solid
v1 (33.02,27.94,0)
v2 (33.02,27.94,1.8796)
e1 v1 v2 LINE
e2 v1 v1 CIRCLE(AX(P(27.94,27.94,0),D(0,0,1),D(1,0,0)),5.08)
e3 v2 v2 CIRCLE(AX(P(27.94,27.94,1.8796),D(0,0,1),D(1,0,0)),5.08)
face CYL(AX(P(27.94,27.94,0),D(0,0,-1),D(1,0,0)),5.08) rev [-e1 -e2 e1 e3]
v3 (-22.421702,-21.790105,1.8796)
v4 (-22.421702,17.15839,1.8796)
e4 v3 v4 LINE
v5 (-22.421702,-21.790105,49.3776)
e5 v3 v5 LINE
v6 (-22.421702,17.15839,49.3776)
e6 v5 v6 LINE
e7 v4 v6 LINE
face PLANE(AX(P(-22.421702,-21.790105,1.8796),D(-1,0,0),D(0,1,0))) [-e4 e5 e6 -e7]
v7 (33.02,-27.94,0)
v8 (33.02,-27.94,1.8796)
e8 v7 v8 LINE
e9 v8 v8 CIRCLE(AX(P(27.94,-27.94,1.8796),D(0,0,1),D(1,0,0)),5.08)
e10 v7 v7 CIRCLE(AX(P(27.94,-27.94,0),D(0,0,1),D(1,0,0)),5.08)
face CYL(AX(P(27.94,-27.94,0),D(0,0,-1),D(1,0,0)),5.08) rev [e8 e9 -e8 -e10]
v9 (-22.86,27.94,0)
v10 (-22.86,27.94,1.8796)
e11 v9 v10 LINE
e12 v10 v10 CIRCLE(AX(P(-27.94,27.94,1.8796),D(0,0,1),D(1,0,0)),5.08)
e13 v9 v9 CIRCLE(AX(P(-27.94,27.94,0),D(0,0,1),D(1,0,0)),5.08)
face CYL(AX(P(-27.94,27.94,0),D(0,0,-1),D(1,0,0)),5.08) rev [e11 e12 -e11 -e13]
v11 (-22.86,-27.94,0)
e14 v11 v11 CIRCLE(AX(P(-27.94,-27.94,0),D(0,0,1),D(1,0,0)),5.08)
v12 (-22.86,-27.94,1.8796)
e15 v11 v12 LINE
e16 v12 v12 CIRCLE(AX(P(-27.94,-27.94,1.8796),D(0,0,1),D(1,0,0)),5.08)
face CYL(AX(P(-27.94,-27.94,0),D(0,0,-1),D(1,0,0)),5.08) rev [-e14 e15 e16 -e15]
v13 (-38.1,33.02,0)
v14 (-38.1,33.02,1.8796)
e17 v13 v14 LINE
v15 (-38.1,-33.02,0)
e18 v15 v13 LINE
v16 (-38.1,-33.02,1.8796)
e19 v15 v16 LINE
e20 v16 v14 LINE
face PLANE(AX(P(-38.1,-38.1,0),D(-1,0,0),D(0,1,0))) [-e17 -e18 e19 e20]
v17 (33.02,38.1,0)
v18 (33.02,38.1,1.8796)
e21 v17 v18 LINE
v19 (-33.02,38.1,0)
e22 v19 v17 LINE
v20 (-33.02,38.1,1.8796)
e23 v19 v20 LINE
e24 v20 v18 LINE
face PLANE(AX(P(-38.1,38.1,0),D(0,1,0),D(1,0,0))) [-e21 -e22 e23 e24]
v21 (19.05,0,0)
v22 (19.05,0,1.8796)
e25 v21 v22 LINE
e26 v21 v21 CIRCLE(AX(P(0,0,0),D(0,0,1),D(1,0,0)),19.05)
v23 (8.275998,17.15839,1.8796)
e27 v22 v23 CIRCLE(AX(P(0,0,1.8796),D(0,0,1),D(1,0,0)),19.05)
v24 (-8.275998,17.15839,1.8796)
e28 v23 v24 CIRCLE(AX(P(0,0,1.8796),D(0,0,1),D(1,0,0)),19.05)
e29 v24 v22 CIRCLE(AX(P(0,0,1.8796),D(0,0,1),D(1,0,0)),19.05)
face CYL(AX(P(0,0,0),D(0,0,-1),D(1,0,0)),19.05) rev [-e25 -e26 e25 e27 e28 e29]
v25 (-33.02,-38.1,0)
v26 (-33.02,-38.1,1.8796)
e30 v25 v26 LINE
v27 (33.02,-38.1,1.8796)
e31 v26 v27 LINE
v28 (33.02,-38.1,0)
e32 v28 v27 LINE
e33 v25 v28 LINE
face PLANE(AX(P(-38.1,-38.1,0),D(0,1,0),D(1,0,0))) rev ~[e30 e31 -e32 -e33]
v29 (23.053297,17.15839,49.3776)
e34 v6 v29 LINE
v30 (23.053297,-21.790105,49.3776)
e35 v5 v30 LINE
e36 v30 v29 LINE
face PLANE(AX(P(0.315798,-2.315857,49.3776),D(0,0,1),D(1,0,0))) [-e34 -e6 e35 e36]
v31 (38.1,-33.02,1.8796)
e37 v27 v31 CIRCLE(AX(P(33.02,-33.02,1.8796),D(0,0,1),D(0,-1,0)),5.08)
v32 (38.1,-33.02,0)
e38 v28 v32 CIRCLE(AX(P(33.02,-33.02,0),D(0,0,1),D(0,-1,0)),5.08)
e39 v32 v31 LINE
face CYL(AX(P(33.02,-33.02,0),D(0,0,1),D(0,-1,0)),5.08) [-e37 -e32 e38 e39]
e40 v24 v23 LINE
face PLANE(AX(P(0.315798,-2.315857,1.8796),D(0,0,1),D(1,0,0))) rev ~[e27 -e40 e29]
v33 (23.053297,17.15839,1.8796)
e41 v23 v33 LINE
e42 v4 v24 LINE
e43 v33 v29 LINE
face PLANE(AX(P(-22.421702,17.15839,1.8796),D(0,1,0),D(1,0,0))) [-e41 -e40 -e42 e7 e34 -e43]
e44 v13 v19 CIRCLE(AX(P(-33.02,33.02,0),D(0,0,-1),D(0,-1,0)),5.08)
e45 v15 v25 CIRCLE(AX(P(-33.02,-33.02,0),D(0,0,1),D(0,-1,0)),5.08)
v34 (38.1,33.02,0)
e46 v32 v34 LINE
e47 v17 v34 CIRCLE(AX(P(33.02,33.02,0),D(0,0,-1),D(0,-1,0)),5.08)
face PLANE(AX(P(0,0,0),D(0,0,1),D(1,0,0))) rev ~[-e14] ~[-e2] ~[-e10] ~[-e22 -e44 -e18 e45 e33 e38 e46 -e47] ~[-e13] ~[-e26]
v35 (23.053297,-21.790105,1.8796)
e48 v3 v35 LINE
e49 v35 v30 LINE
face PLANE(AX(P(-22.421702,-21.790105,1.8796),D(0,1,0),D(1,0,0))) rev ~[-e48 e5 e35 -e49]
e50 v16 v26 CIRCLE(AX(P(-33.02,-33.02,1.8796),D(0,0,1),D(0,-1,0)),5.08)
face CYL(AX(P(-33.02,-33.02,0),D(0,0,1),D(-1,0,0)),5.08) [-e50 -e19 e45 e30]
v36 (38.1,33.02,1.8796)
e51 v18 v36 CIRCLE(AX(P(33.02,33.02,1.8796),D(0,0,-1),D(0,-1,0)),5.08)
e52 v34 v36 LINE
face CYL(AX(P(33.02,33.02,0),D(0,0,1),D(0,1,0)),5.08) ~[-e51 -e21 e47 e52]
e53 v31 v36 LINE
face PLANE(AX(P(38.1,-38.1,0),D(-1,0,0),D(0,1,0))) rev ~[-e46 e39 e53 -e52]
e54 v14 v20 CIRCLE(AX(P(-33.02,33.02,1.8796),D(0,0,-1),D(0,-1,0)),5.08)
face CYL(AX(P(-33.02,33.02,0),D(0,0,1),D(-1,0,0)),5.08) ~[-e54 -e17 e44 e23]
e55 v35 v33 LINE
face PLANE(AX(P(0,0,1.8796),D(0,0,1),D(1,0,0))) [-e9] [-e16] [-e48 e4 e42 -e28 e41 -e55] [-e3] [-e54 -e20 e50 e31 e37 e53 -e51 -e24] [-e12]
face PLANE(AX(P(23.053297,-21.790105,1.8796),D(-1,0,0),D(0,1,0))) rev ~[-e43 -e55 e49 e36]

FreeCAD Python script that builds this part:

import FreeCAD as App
import Part
import Sketcher
Q = App.Units.Quantity


def edges_at(feature, points):
    """Names of the edges that pass closest to the given points."""
    edges = feature.Shape.Edges
    near = lambda p: min(range(len(edges)), key=lambda i: edges[i].distToShape(Part.Vertex(*p))[0])
    return sorted({f"Edge{near(p) + 1}" for p in points})

doc = App.newDocument("Part")
body = doc.addObject("PartDesign::Body", "Body")

# Sketch on XY plane
sketch1 = doc.addObject("Sketcher::SketchObject", "Sketch")
body.addObject(sketch1)
sketch1.AttachmentSupport = (doc.XY_Plane, [""])
sketch1.MapMode = "FlatFace"
sketch1.addGeometry([
    Part.LineSegment(App.Vector(-38, 38, 0), App.Vector(-38, -38, 0)),  # 0
    Part.LineSegment(App.Vector(-38, -38, 0), App.Vector(38, -38, 0)),  # 1
    Part.LineSegment(App.Vector(38, -38, 0), App.Vector(38, 38, 0)),  # 2
    Part.LineSegment(App.Vector(38, 38, 0), App.Vector(-38, 38, 0)),  # 3
    Part.Circle(App.Vector(-28, -28, 0), App.Vector(0, 0, 1), 5),  # 4
    Part.Circle(App.Vector(28, -28, 0), App.Vector(0, 0, 1), 5),  # 5
    Part.Circle(App.Vector(-28, 28, 0), App.Vector(0, 0, 1), 5),  # 6
    Part.Circle(App.Vector(0, 0, 0), App.Vector(0, 0, 1), 19),  # 7
    Part.Circle(App.Vector(28, 28, 0), App.Vector(0, 0, 1), 5),  # 8
], False)
sketch1.addConstraint([
    Sketcher.Constraint("Coincident", 0, 2, 1, 1),
    Sketcher.Constraint("Coincident", 1, 2, 2, 1),
    Sketcher.Constraint("Coincident", 2, 2, 3, 1),
    Sketcher.Constraint("Coincident", 3, 2, 0, 1),
    Sketcher.Constraint("Vertical", 0),
    Sketcher.Constraint("Horizontal", 1),
    Sketcher.Constraint("Vertical", 2),
    Sketcher.Constraint("Horizontal", 3),
    Sketcher.Constraint("Coincident", 7, 3, -1, 1),
    Sketcher.Constraint("Equal", 4, 5),
    Sketcher.Constraint("Equal", 5, 6),
    Sketcher.Constraint("Equal", 6, 8),
    Sketcher.Constraint("Symmetric", 5, 3, 6, 3, -1, 1),
    Sketcher.Constraint("Symmetric", 4, 3, 8, 3, -1, 1),
    Sketcher.Constraint("Symmetric", 0, 2, 2, 2, -1, 1),
    Sketcher.Constraint("Symmetric", 4, 3, 5, 3, -2),
    Sketcher.Constraint("Equal", 3, 0),
    Sketcher.Constraint("Diameter", 4, Q("0.4 in")),
    Sketcher.Constraint("Diameter", 7, Q("1.5 in")),
    Sketcher.Constraint("DistanceX", 1, 1, 1, 2, Q("3 in")),
    Sketcher.Constraint("DistanceX", 4, 3, -1, 1, Q("1.1 in")),
    Sketcher.Constraint("DistanceY", 4, 3, -1, 1, Q("1.1 in")),
])
pad1 = doc.addObject("PartDesign::Pad", "Pad")
body.addObject(pad1)
pad1.Profile = sketch1
pad1.Length = Q("0.074 in")
doc.recompute()

fillet = doc.addObject("PartDesign::Fillet", "Fillet")
body.addObject(fillet)
fillet.Base = (pad1, edges_at(pad1, [
    (-38.1, -38.1, 0.94),
    (38.1, -38.1, 0.94),
    (38.1, 38.1, 0.94),
    (-38.1, 38.1, 0.94),
]))
fillet.Radius = Q("0.2 in")

# Sketch on XY plane
sketch2 = doc.addObject("Sketcher::SketchObject", "Sketch001")
body.addObject(sketch2)
sketch2.AttachmentSupport = (doc.XY_Plane, [""])
sketch2.MapMode = "FlatFace"
sketch2.AttachmentOffset = App.Placement(App.Vector(0, 0, 0.074 * 25.4), App.Rotation())
sketch2.addGeometry([
    Part.LineSegment(App.Vector(-22, 17, 0), App.Vector(-22, -22, 0)),
    Part.LineSegment(App.Vector(-22, -22, 0), App.Vector(23, -22, 0)),
    Part.LineSegment(App.Vector(23, -22, 0), App.Vector(23, 17, 0)),
    Part.LineSegment(App.Vector(23, 17, 0), App.Vector(-22, 17, 0)),
], False)
sketch2.addConstraint([
    Sketcher.Constraint("Coincident", 0, 2, 1, 1),
    Sketcher.Constraint("Coincident", 1, 2, 2, 1),
    Sketcher.Constraint("Coincident", 2, 2, 3, 1),
    Sketcher.Constraint("Coincident", 3, 2, 0, 1),
    Sketcher.Constraint("Vertical", 0),
    Sketcher.Constraint("Horizontal", 1),
    Sketcher.Constraint("Vertical", 2),
    Sketcher.Constraint("Horizontal", 3),
    Sketcher.Constraint("DistanceX", 1, 1, 1, 2, 45.474999),
    Sketcher.Constraint("DistanceX", 0, 2, -1, 1, 22.421702),
    Sketcher.Constraint("DistanceY", 0, 2, 0, 1, 38.948495),
    Sketcher.Constraint("DistanceY", -1, 1, 2, 2, 17.15839),
])
pad2 = doc.addObject("PartDesign::Pad", "Pad001")
body.addObject(pad2)
pad2.Profile = sketch2
pad2.Length = Q("1.87 in")

doc.recompute()
